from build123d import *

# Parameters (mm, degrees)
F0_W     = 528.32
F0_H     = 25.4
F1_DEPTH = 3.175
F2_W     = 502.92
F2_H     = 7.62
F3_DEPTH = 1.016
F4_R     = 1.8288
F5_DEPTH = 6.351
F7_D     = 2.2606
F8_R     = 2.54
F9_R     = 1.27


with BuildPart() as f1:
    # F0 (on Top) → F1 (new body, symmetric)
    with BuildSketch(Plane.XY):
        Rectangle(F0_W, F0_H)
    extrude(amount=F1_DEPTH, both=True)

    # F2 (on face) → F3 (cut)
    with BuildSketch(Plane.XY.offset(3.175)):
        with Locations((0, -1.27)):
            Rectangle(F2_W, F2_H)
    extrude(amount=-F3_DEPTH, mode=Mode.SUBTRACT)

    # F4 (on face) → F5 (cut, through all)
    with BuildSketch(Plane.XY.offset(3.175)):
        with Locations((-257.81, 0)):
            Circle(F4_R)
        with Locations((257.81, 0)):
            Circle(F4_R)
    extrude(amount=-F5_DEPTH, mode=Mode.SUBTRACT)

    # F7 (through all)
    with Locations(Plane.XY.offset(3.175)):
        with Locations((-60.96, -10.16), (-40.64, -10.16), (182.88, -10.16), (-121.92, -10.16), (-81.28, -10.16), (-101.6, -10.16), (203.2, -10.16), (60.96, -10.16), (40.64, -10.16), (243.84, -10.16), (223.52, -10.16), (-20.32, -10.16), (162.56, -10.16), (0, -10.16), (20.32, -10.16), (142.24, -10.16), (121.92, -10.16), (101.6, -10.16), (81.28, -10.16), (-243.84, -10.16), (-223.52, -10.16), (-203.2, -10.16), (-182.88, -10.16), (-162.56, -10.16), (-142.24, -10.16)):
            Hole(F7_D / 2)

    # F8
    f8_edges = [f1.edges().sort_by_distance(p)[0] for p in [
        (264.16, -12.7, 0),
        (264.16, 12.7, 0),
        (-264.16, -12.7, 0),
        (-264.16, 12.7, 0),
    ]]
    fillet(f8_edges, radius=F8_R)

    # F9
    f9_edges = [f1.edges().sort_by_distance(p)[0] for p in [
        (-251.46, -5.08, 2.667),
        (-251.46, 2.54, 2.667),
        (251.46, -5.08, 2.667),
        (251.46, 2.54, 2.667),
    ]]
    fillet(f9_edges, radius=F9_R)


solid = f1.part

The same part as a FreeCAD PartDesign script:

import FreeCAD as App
import Part
import Sketcher

V = App.Vector
Q = App.Units.Quantity


def edges_at(feature, points):
    """Names of the edges that pass closest to the given points."""
    edges = feature.Shape.Edges
    near = lambda p: min(range(len(edges)), key=lambda i: edges[i].distToShape(Part.Vertex(*p))[0])
    return sorted({f"Edge{near(p) + 1}" for p in points})


def add_polygon(sketch, points):
    """Adds a closed chain of lines whose ends are joined by coincident constraints."""
    first, n = sketch.GeometryCount, len(points)
    for a, b in zip(points, points[1:] + points[:1]):
        sketch.addGeometry(Part.LineSegment(App.Vector(*a, 0), App.Vector(*b, 0)), False)
    for i in range(n):
        sketch.addConstraint(Sketcher.Constraint("Coincident", first + i, 2, first + (i + 1) % n, 1))

doc = App.newDocument("Part")
body = doc.addObject("PartDesign::Body", "Body")

sketch1 = doc.addObject("Sketcher::SketchObject", "Sketch")
body.addObject(sketch1)
sketch1.AttachmentSupport = (doc.XY_Plane, [""])
sketch1.MapMode = "FlatFace"
add_polygon(sketch1, [(-264, 13), (-264, -13), (264, -13), (264, 13)])
sketch1.addConstraint(Sketcher.Constraint("Vertical", 0))
sketch1.addConstraint(Sketcher.Constraint("Horizontal", 1))
sketch1.addConstraint(Sketcher.Constraint("Vertical", 2))
sketch1.addConstraint(Sketcher.Constraint("Horizontal", 3))
sketch1.addConstraint(Sketcher.Constraint("Symmetric", 0, 2, 2, 2, -1, 1))
sketch1.addConstraint(Sketcher.Constraint("DistanceY", 0, 2, 0, 1, Q("1 in")))
sketch1.addConstraint(Sketcher.Constraint("DistanceX", 1, 1, 1, 2, Q("20.8 in")))
pad1 = doc.addObject("PartDesign::Pad", "Pad")
body.addObject(pad1)
pad1.Profile = sketch1
pad1.Length = Q("0.25 in")
pad1.Midplane = True

sketch2 = doc.addObject("Sketcher::SketchObject", "Sketch001")
body.addObject(sketch2)
sketch2.AttachmentSupport = (doc.XY_Plane, [""])
sketch2.MapMode = "FlatFace"
sketch2.AttachmentOffset = App.Placement(V(0, 0, 0.125 * 25.4), App.Rotation())
add_polygon(sketch2, [(-251, 3), (-251, -5), (251, -5), (251, 3)])
sketch2.addConstraint(Sketcher.Constraint("Vertical", 0))
sketch2.addConstraint(Sketcher.Constraint("Horizontal", 1))
sketch2.addConstraint(Sketcher.Constraint("Vertical", 2))
sketch2.addConstraint(Sketcher.Constraint("Horizontal", 3))
sketch2.addConstraint(Sketcher.Constraint("DistanceX", 1, 1, 1, 2, Q("19.8 in")))
sketch2.addConstraint(Sketcher.Constraint("DistanceY", 0, 2, 0, 1, Q("0.3 in")))
sketch2.addConstraint(Sketcher.Constraint("DistanceX", 0, 2, -1, 1, Q("9.9 in")))
sketch2.addConstraint(Sketcher.Constraint("DistanceY", 0, 2, -1, 1, Q("0.2 in")))
pocket1 = doc.addObject("PartDesign::Pocket", "Pocket")
body.addObject(pocket1)
pocket1.Profile = sketch2
pocket1.Length = Q("0.04 in")

sketch3 = doc.addObject("Sketcher::SketchObject", "Sketch002")
body.addObject(sketch3)
sketch3.AttachmentSupport = (doc.XY_Plane, [""])
sketch3.MapMode = "FlatFace"
sketch3.AttachmentOffset = App.Placement(V(0, 0, 0.125 * 25.4), App.Rotation())
sketch3.addGeometry(Part.Circle(V(-257.8, 0, 0), V(0, 0, 1), 1.8), False)
sketch3.addGeometry(Part.Circle(V(257.8, 0, 0), V(0, 0, 1), 1.8), False)
sketch3.addConstraint(Sketcher.Constraint("Equal", 0, 1))
sketch3.addConstraint(Sketcher.Constraint("Symmetric", 0, 3, 1, 3, -1, 1))
sketch3.addConstraint(Sketcher.Constraint("PointOnObject", 0, 3, -1))
sketch3.addConstraint(Sketcher.Constraint("Diameter", 0, Q("0.144 in")))
sketch3.addConstraint(Sketcher.Constraint("DistanceX", 0, 3, 1, 3, Q("20.3 in")))
pocket2 = doc.addObject("PartDesign::Pocket", "Pocket001")
body.addObject(pocket2)
pocket2.Profile = sketch3
pocket2.Type = "ThroughAll"

sketch4 = doc.addObject("Sketcher::SketchObject", "Sketch003")
body.addObject(sketch4)
sketch4.AttachmentSupport = (doc.XY_Plane, [""])
sketch4.MapMode = "FlatFace"
sketch4.AttachmentOffset = App.Placement(V(0, 0, 0.125 * 25.4), App.Rotation())
sketch4.addGeometry(Part.Circle(V(-61, -10.2, 0), V(0, 0, 1), 1.1), False)
sketch4.addGeometry(Part.Circle(V(-40.6, -10.2, 0), V(0, 0, 1), 1.1), False)
sketch4.addGeometry(Part.Circle(V(182.9, -10.2, 0), V(0, 0, 1), 1.1), False)
sketch4.addGeometry(Part.Circle(V(-121.9, -10.2, 0), V(0, 0, 1), 1.1), False)
sketch4.addGeometry(Part.Circle(V(-81.3, -10.2, 0), V(0, 0, 1), 1.1), False)
sketch4.addGeometry(Part.Circle(V(-101.6, -10.2, 0), V(0, 0, 1), 1.1), False)
sketch4.addGeometry(Part.Circle(V(203.2, -10.2, 0), V(0, 0, 1), 1.1), False)
sketch4.addGeometry(Part.Circle(V(61, -10.2, 0), V(0, 0, 1), 1.1), False)
sketch4.addGeometry(Part.Circle(V(40.6, -10.2, 0), V(0, 0, 1), 1.1), False)
sketch4.addGeometry(Part.Circle(V(243.8, -10.2, 0), V(0, 0, 1), 1.1), False)
sketch4.addGeometry(Part.Circle(V(223.5, -10.2, 0), V(0, 0, 1), 1.1), False)
sketch4.addGeometry(Part.Circle(V(-20.3, -10.2, 0), V(0, 0, 1), 1.1), False)
sketch4.addGeometry(Part.Circle(V(162.6, -10.2, 0), V(0, 0, 1), 1.1), False)
sketch4.addGeometry(Part.Circle(V(0, -10.2, 0), V(0, 0, 1), 1.1), False)
sketch4.addGeometry(Part.Circle(V(20.3, -10.2, 0), V(0, 0, 1), 1.1), False)
sketch4.addGeometry(Part.Circle(V(142.2, -10.2, 0), V(0, 0, 1), 1.1), False)
sketch4.addGeometry(Part.Circle(V(121.9, -10.2, 0), V(0, 0, 1), 1.1), False)
sketch4.addGeometry(Part.Circle(V(101.6, -10.2, 0), V(0, 0, 1), 1.1), False)
sketch4.addGeometry(Part.Circle(V(81.3, -10.2, 0), V(0, 0, 1), 1.1), False)
sketch4.addGeometry(Part.Circle(V(-243.8, -10.2, 0), V(0, 0, 1), 1.1), False)
sketch4.addGeometry(Part.Circle(V(-223.5, -10.2, 0), V(0, 0, 1), 1.1), False)
sketch4.addGeometry(Part.Circle(V(-203.2, -10.2, 0), V(0, 0, 1), 1.1), False)
sketch4.addGeometry(Part.Circle(V(-182.9, -10.2, 0), V(0, 0, 1), 1.1), False)
sketch4.addGeometry(Part.Circle(V(-162.6, -10.2, 0), V(0, 0, 1), 1.1), False)
sketch4.addGeometry(Part.Circle(V(-142.2, -10.2, 0), V(0, 0, 1), 1.1), False)
sketch4.addConstraint(Sketcher.Constraint("Equal", 0, 1))
sketch4.addConstraint(Sketcher.Constraint("Equal", 1, 2))
sketch4.addConstraint(Sketcher.Constraint("Equal", 2, 3))
sketch4.addConstraint(Sketcher.Constraint("Equal", 3, 4))
sketch4.addConstraint(Sketcher.Constraint("Equal", 4, 5))
sketch4.addConstraint(Sketcher.Constraint("Equal", 5, 6))
sketch4.addConstraint(Sketcher.Constraint("Equal", 6, 7))
sketch4.addConstraint(Sketcher.Constraint("Equal", 7, 8))
sketch4.addConstraint(Sketcher.Constraint("Equal", 8, 9))
sketch4.addConstraint(Sketcher.Constraint("Equal", 9, 10))
sketch4.addConstraint(Sketcher.Constraint("Equal", 10, 11))
sketch4.addConstraint(Sketcher.Constraint("Equal", 11, 12))
sketch4.addConstraint(Sketcher.Constraint("Equal", 12, 13))
sketch4.addConstraint(Sketcher.Constraint("Equal", 13, 14))
sketch4.addConstraint(Sketcher.Constraint("Equal", 14, 15))
sketch4.addConstraint(Sketcher.Constraint("Equal", 15, 16))
sketch4.addConstraint(Sketcher.Constraint("Equal", 16, 17))
sketch4.addConstraint(Sketcher.Constraint("Equal", 17, 18))
sketch4.addConstraint(Sketcher.Constraint("Equal", 18, 19))
sketch4.addConstraint(Sketcher.Constraint("Equal", 19, 20))
sketch4.addConstraint(Sketcher.Constraint("Equal", 20, 21))
sketch4.addConstraint(Sketcher.Constraint("Equal", 21, 22))
sketch4.addConstraint(Sketcher.Constraint("Equal", 22, 23))
sketch4.addConstraint(Sketcher.Constraint("Equal", 23, 24))
sketch4.addConstraint(Sketcher.Constraint("Symmetric", 0, 3, 7, 3, -2))
sketch4.addConstraint(Sketcher.Constraint("Symmetric", 1, 3, 8, 3, -2))
sketch4.addConstraint(Sketcher.Constraint("Symmetric", 11, 3, 14, 3, -2))
sketch4.addConstraint(Sketcher.Constraint("Symmetric", 3, 3, 16, 3, -2))
sketch4.addConstraint(Sketcher.Constraint("Symmetric", 5, 3, 17, 3, -2))
sketch4.addConstraint(Sketcher.Constraint("Symmetric", 4, 3, 18, 3, -2))
sketch4.addConstraint(Sketcher.Constraint("Symmetric", 9, 3, 19, 3, -2))
sketch4.addConstraint(Sketcher.Constraint("Symmetric", 10, 3, 20, 3, -2))
sketch4.addConstraint(Sketcher.Constraint("Symmetric", 6, 3, 21, 3, -2))
sketch4.addConstraint(Sketcher.Constraint("Symmetric", 2, 3, 22, 3, -2))
sketch4.addConstraint(Sketcher.Constraint("Symmetric", 12, 3, 23, 3, -2))
sketch4.addConstraint(Sketcher.Constraint("Symmetric", 15, 3, 24, 3, -2))
sketch4.addConstraint(Sketcher.Constraint("PointOnObject", 13, 3, -2))
sketch4.addConstraint(Sketcher.Constraint("Horizontal", 0, 3, 1, 3))
sketch4.addConstraint(Sketcher.Constraint("Horizontal", 1, 3, 2, 3))
sketch4.addConstraint(Sketcher.Constraint("Horizontal", 2, 3, 3, 3))
sketch4.addConstraint(Sketcher.Constraint("Horizontal", 3, 3, 4, 3))
sketch4.addConstraint(Sketcher.Constraint("Horizontal", 4, 3, 5, 3))
sketch4.addConstraint(Sketcher.Constraint("Horizontal", 5, 3, 6, 3))
sketch4.addConstraint(Sketcher.Constraint("Horizontal", 8, 3, 9, 3))
sketch4.addConstraint(Sketcher.Constraint("Horizontal", 9, 3, 10, 3))
sketch4.addConstraint(Sketcher.Constraint("Horizontal", 10, 3, 11, 3))
sketch4.addConstraint(Sketcher.Constraint("Horizontal", 11, 3, 12, 3))
sketch4.addConstraint(Sketcher.Constraint("Horizontal", 12, 3, 13, 3))
sketch4.addConstraint(Sketcher.Constraint("Horizontal", 14, 3, 15, 3))
sketch4.addConstraint(Sketcher.Constraint("Diameter", 0, Q("0.089 in")))
sketch4.addConstraint(Sketcher.Constraint("DistanceX", 5, 3, -1, 1, Q("4 in")))
sketch4.addConstraint(Sketcher.Constraint("DistanceX", -1, 1, 6, 3, Q("8 in")))
sketch4.addConstraint(Sketcher.Constraint("DistanceX", 3, 3, 2, 3, Q("12 in")))
sketch4.addConstraint(Sketcher.Constraint("DistanceX", 1, 3, 7, 3, Q("4 in")))
sketch4.addConstraint(Sketcher.Constraint("DistanceX", 8, 3, 9, 3, Q("8 in")))
sketch4.addConstraint(Sketcher.Constraint("DistanceX", 7, 3, 12, 3, Q("4 in")))
sketch4.addConstraint(Sketcher.Constraint("DistanceX", 20, 3, 3, 3, Q("4 in")))
sketch4.addConstraint(Sketcher.Constraint("DistanceX", 0, 3, -1, 1, Q("2.4 in")))
sketch4.addConstraint(Sketcher.Constraint("DistanceY", 0, 3, -1, 1, Q("0.4 in")))
sketch4.addConstraint(Sketcher.Constraint("DistanceX", -1, 1, 2, 3, Q("7.2 in")))
sketch4.addConstraint(Sketcher.Constraint("DistanceX", 4, 3, -1, 1, Q("3.2 in")))
sketch4.addConstraint(Sketcher.Constraint("DistanceX", 11, 3, -1, 1, Q("0.8 in")))
sketch4.addConstraint(Sketcher.Constraint("DistanceX", -1, 1, 15, 3, Q("5.6 in")))
doc.recompute()
hole = doc.addObject("PartDesign::Hole", "Hole")
body.addObject(hole)
hole.Profile = sketch4
hole.ThreadType = "None"
hole.Diameter = Q("0.089 in")
hole.DepthType = "ThroughAll"
doc.recompute()

fillet = doc.addObject("PartDesign::Fillet", "Fillet")
body.addObject(fillet)
fillet.Base = (hole, edges_at(hole, [
    (264.16, -12.7, 0),
    (264.16, 12.7, 0),
    (-264.16, -12.7, 0),
    (-264.16, 12.7, 0),
]))
fillet.Radius = Q("0.1 in")
doc.recompute()

fillet2 = doc.addObject("PartDesign::Fillet", "Fillet001")
body.addObject(fillet2)
fillet2.Base = (fillet, edges_at(fillet, [
    (-251.46, -5.08, 2.667),
    (-251.46, 2.54, 2.667),
    (251.46, -5.08, 2.667),
    (251.46, 2.54, 2.667),
]))
fillet2.Radius = Q("0.05 in")

doc.recompute()
